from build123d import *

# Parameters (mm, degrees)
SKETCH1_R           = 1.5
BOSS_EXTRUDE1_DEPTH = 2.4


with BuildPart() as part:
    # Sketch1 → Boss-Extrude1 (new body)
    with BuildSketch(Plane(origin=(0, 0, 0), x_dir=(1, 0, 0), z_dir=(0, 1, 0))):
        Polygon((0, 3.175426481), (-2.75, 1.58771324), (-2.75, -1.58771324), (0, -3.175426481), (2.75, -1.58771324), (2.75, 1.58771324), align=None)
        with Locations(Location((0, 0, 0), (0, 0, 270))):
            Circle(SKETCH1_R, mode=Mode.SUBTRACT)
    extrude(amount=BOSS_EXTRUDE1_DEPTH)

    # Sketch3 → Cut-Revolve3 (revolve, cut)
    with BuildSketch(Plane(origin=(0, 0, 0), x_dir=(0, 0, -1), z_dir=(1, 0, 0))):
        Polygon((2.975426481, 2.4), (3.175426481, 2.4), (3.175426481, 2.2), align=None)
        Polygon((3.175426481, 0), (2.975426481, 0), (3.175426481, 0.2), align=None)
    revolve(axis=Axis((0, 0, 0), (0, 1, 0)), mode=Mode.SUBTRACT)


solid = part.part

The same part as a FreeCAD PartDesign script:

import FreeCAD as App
import Part
import Sketcher
Q = App.Units.Quantity


def add_polygon(sketch, points):
    """Adds a closed chain of lines whose ends are joined by coincident constraints."""
    first, n = sketch.GeometryCount, len(points)
    for a, b in zip(points, points[1:] + points[:1]):
        sketch.addGeometry(Part.LineSegment(App.Vector(*a, 0), App.Vector(*b, 0)), False)
    for i in range(n):
        sketch.addConstraint(Sketcher.Constraint("Coincident", first + i, 2, first + (i + 1) % n, 1))

doc = App.newDocument("Part")
body = doc.addObject("PartDesign::Body", "Body")

# Sketch on XZ plane
sketch1 = body.newObject("Sketcher::SketchObject", "Sketch")
sketch1.AttachmentSupport = (doc.getObject("XZ_Plane"), [""])
sketch1.MapMode = "FlatFace"
add_polygon(sketch1, [(0, -3.2), (-2.8, -1.6), (-2.8, 1.6), (0, 3.2), (2.8, 1.6), (2.8, -1.6)])  # lines 0-5
sketch1.addGeometry(Part.Circle(App.Vector(0, 0, 0), App.Vector(0, 0, 1), 1.5), False)  # 6
sketch1.addConstraint([
    Sketcher.Constraint("Vertical", 1),
    Sketcher.Constraint("Vertical", 4),
    Sketcher.Constraint("Coincident", 6, 3, -1, 1),
    Sketcher.Constraint("Symmetric", 0, 2, 3, 2, -1, 1),
    Sketcher.Constraint("Symmetric", 2, 2, 5, 2, -1, 1),
    Sketcher.Constraint("PointOnObject", 2, 2, -2),
    Sketcher.Constraint("Parallel", 2, 5),
    Sketcher.Constraint("Horizontal", 1, 2, 3, 2),
    Sketcher.Constraint("Diameter", 6, Q("3 mm")),
    Sketcher.Constraint("Angle", 0, Q("150 deg")),
    Sketcher.Constraint("DistanceX", 1, 2, 3, 2, Q("5.5 mm")),
    Sketcher.Constraint("DistanceY", 1, 1, 1, 2, Q("3.175426 mm")),
])
pad1 = body.newObject("PartDesign::Pad", "Pad")
pad1.Profile = sketch1
pad1.Length = 2.4
pad1.Reversed = True

# Sketch on YZ plane
sketch2 = body.newObject("Sketcher::SketchObject", "Sketch001")
sketch2.AttachmentSupport = (doc.getObject("YZ_Plane"), [""])
sketch2.MapMode = "FlatFace"
add_polygon(sketch2, [(2.4, -3.18), (2.4, -2.98), (2.2, -3.18)])  # lines 0-2
add_polygon(sketch2, [(0, -2.98), (0, -3.18), (0.2, -3.18)])  # lines 3-5
sketch2.addConstraint([
    Sketcher.Constraint("Vertical", 0),
    Sketcher.Constraint("Horizontal", 2),
    Sketcher.Constraint("Vertical", 3),
    Sketcher.Constraint("Horizontal", 4),
    Sketcher.Constraint("PointOnObject", 3, 2, -2),
    Sketcher.Constraint("Perpendicular", 1, 5),
    Sketcher.Constraint("Horizontal", 2, 2, 3, 2),
    Sketcher.Constraint("Horizontal", 0, 2, 5, 2),
    Sketcher.Constraint("Equal", 2, 4),
    Sketcher.Constraint("DistanceX", 2, 1, 2, 2, Q("0.2 mm")),
    Sketcher.Constraint("DistanceX", 4, 2, 1, 2, Q("2 mm")),
    Sketcher.Constraint("DistanceY", 0, 2, -1, 1, Q("2.975426 mm")),
])
groove = body.newObject("PartDesign::Groove", "Groove")
groove.Profile = sketch2
groove.ReferenceAxis = (sketch2, ["H_Axis"])
groove.Angle = 360

doc.recompute()
